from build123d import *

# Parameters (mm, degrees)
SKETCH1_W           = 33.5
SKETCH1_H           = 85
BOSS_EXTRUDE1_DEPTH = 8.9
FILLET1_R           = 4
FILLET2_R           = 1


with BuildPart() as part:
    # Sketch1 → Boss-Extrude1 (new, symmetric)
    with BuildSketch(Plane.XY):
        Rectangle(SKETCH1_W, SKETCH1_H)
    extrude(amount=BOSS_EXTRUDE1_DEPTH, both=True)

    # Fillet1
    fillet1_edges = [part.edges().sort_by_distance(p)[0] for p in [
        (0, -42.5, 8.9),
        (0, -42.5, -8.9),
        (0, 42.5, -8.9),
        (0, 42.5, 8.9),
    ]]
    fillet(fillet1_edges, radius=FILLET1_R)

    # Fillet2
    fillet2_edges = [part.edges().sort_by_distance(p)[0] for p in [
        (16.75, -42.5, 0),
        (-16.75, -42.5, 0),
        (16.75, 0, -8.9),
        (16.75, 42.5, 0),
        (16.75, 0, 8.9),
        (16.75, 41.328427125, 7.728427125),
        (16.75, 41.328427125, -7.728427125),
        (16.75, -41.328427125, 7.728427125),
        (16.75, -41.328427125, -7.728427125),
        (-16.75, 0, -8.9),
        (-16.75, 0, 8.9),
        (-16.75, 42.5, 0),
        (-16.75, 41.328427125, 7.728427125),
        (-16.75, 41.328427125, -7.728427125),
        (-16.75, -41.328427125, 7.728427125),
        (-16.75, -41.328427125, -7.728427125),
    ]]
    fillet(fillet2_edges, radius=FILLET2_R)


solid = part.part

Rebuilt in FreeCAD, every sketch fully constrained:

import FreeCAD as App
import Part
import Sketcher

V = App.Vector
Q = App.Units.Quantity


def edges_at(feature, points):
    """Names of the edges that pass closest to the given points."""
    edges = feature.Shape.Edges
    near = lambda p: min(range(len(edges)), key=lambda i: edges[i].distToShape(Part.Vertex(*p))[0])
    return sorted({f"Edge{near(p) + 1}" for p in points})

doc = App.newDocument("Part")
params = doc.addObject("Spreadsheet::Sheet", "Params")
for row, (alias, value) in enumerate([
    ("sketch1_height", "85 mm"),
    ("sketch1_width", "33.5 mm"),
    ("pad1_length", "17.8 mm"),
    ("fillet_radius", "4 mm"),
    ("fillet2_radius", "1 mm"),
], start=1):
    params.set(f"A{row}", alias)
    params.set(f"B{row}", "=" + value)
    params.setAlias(f"B{row}", alias)

body = doc.addObject("PartDesign::Body", "Body")

# Sketch on XY plane
sketch1 = body.newObject("Sketcher::SketchObject", "Sketch")
sketch1.AttachmentSupport = (doc.getObject("XY_Plane"), [""])
sketch1.MapMode = "FlatFace"
sketch1.addGeometry(Part.LineSegment(V(-17, 42, 0), V(-17, -42, 0)), False)
sketch1.addGeometry(Part.LineSegment(V(-17, -42, 0), V(17, -42, 0)), False)
sketch1.addGeometry(Part.LineSegment(V(17, -42, 0), V(17, 42, 0)), False)
sketch1.addGeometry(Part.LineSegment(V(17, 42, 0), V(-17, 42, 0)), False)
sketch1.addConstraint(Sketcher.Constraint("Coincident", 0, 2, 1, 1))
sketch1.addConstraint(Sketcher.Constraint("Coincident", 1, 2, 2, 1))
sketch1.addConstraint(Sketcher.Constraint("Coincident", 2, 2, 3, 1))
sketch1.addConstraint(Sketcher.Constraint("Coincident", 3, 2, 0, 1))
sketch1.addConstraint(Sketcher.Constraint("Vertical", 0))
sketch1.addConstraint(Sketcher.Constraint("Horizontal", 1))
sketch1.addConstraint(Sketcher.Constraint("Vertical", 2))
sketch1.addConstraint(Sketcher.Constraint("Horizontal", 3))
sketch1.addConstraint(Sketcher.Constraint("Symmetric", 0, 2, 2, 2, -1, 1))
sketch1.addConstraint(Sketcher.Constraint("DistanceY", 0, 2, 0, 1, Q("85 mm")))
sketch1.addConstraint(Sketcher.Constraint("DistanceX", 1, 1, 1, 2, Q("33.5 mm")))
sketch1.setExpression("Constraints[9]", "Params.sketch1_height")
sketch1.setExpression("Constraints[10]", "Params.sketch1_width")
pad1 = body.newObject("PartDesign::Pad", "Pad")
pad1.Profile = sketch1
pad1.setExpression("Length", "Params.pad1_length")
pad1.Midplane = True
doc.recompute()

fillet = body.newObject("PartDesign::Fillet", "Fillet")
fillet.Base = (pad1, edges_at(pad1, [
    (0, -42.5, 8.9),
    (0, -42.5, -8.9),
    (0, 42.5, -8.9),
    (0, 42.5, 8.9),
]))
fillet.setExpression("Radius", "Params.fillet_radius")
doc.recompute()

fillet2 = body.newObject("PartDesign::Fillet", "Fillet001")
fillet2.Base = (fillet, edges_at(fillet, [
    (16.75, -42.5, 0),
    (-16.75, -42.5, 0),
    (16.75, 0, -8.9),
    (16.75, 42.5, 0),
    (16.75, 0, 8.9),
    (16.75, 41.328, 7.728),
    (16.75, 41.328, -7.728),
    (16.75, -41.328, 7.728),
    (16.75, -41.328, -7.728),
    (-16.75, 0, -8.9),
    (-16.75, 0, 8.9),
    (-16.75, 42.5, 0),
    (-16.75, 41.328, 7.728),
    (-16.75, 41.328, -7.728),
    (-16.75, -41.328, 7.728),
    (-16.75, -41.328, -7.728),
]))
fillet2.setExpression("Radius", "Params.fillet2_radius")

doc.recompute()
